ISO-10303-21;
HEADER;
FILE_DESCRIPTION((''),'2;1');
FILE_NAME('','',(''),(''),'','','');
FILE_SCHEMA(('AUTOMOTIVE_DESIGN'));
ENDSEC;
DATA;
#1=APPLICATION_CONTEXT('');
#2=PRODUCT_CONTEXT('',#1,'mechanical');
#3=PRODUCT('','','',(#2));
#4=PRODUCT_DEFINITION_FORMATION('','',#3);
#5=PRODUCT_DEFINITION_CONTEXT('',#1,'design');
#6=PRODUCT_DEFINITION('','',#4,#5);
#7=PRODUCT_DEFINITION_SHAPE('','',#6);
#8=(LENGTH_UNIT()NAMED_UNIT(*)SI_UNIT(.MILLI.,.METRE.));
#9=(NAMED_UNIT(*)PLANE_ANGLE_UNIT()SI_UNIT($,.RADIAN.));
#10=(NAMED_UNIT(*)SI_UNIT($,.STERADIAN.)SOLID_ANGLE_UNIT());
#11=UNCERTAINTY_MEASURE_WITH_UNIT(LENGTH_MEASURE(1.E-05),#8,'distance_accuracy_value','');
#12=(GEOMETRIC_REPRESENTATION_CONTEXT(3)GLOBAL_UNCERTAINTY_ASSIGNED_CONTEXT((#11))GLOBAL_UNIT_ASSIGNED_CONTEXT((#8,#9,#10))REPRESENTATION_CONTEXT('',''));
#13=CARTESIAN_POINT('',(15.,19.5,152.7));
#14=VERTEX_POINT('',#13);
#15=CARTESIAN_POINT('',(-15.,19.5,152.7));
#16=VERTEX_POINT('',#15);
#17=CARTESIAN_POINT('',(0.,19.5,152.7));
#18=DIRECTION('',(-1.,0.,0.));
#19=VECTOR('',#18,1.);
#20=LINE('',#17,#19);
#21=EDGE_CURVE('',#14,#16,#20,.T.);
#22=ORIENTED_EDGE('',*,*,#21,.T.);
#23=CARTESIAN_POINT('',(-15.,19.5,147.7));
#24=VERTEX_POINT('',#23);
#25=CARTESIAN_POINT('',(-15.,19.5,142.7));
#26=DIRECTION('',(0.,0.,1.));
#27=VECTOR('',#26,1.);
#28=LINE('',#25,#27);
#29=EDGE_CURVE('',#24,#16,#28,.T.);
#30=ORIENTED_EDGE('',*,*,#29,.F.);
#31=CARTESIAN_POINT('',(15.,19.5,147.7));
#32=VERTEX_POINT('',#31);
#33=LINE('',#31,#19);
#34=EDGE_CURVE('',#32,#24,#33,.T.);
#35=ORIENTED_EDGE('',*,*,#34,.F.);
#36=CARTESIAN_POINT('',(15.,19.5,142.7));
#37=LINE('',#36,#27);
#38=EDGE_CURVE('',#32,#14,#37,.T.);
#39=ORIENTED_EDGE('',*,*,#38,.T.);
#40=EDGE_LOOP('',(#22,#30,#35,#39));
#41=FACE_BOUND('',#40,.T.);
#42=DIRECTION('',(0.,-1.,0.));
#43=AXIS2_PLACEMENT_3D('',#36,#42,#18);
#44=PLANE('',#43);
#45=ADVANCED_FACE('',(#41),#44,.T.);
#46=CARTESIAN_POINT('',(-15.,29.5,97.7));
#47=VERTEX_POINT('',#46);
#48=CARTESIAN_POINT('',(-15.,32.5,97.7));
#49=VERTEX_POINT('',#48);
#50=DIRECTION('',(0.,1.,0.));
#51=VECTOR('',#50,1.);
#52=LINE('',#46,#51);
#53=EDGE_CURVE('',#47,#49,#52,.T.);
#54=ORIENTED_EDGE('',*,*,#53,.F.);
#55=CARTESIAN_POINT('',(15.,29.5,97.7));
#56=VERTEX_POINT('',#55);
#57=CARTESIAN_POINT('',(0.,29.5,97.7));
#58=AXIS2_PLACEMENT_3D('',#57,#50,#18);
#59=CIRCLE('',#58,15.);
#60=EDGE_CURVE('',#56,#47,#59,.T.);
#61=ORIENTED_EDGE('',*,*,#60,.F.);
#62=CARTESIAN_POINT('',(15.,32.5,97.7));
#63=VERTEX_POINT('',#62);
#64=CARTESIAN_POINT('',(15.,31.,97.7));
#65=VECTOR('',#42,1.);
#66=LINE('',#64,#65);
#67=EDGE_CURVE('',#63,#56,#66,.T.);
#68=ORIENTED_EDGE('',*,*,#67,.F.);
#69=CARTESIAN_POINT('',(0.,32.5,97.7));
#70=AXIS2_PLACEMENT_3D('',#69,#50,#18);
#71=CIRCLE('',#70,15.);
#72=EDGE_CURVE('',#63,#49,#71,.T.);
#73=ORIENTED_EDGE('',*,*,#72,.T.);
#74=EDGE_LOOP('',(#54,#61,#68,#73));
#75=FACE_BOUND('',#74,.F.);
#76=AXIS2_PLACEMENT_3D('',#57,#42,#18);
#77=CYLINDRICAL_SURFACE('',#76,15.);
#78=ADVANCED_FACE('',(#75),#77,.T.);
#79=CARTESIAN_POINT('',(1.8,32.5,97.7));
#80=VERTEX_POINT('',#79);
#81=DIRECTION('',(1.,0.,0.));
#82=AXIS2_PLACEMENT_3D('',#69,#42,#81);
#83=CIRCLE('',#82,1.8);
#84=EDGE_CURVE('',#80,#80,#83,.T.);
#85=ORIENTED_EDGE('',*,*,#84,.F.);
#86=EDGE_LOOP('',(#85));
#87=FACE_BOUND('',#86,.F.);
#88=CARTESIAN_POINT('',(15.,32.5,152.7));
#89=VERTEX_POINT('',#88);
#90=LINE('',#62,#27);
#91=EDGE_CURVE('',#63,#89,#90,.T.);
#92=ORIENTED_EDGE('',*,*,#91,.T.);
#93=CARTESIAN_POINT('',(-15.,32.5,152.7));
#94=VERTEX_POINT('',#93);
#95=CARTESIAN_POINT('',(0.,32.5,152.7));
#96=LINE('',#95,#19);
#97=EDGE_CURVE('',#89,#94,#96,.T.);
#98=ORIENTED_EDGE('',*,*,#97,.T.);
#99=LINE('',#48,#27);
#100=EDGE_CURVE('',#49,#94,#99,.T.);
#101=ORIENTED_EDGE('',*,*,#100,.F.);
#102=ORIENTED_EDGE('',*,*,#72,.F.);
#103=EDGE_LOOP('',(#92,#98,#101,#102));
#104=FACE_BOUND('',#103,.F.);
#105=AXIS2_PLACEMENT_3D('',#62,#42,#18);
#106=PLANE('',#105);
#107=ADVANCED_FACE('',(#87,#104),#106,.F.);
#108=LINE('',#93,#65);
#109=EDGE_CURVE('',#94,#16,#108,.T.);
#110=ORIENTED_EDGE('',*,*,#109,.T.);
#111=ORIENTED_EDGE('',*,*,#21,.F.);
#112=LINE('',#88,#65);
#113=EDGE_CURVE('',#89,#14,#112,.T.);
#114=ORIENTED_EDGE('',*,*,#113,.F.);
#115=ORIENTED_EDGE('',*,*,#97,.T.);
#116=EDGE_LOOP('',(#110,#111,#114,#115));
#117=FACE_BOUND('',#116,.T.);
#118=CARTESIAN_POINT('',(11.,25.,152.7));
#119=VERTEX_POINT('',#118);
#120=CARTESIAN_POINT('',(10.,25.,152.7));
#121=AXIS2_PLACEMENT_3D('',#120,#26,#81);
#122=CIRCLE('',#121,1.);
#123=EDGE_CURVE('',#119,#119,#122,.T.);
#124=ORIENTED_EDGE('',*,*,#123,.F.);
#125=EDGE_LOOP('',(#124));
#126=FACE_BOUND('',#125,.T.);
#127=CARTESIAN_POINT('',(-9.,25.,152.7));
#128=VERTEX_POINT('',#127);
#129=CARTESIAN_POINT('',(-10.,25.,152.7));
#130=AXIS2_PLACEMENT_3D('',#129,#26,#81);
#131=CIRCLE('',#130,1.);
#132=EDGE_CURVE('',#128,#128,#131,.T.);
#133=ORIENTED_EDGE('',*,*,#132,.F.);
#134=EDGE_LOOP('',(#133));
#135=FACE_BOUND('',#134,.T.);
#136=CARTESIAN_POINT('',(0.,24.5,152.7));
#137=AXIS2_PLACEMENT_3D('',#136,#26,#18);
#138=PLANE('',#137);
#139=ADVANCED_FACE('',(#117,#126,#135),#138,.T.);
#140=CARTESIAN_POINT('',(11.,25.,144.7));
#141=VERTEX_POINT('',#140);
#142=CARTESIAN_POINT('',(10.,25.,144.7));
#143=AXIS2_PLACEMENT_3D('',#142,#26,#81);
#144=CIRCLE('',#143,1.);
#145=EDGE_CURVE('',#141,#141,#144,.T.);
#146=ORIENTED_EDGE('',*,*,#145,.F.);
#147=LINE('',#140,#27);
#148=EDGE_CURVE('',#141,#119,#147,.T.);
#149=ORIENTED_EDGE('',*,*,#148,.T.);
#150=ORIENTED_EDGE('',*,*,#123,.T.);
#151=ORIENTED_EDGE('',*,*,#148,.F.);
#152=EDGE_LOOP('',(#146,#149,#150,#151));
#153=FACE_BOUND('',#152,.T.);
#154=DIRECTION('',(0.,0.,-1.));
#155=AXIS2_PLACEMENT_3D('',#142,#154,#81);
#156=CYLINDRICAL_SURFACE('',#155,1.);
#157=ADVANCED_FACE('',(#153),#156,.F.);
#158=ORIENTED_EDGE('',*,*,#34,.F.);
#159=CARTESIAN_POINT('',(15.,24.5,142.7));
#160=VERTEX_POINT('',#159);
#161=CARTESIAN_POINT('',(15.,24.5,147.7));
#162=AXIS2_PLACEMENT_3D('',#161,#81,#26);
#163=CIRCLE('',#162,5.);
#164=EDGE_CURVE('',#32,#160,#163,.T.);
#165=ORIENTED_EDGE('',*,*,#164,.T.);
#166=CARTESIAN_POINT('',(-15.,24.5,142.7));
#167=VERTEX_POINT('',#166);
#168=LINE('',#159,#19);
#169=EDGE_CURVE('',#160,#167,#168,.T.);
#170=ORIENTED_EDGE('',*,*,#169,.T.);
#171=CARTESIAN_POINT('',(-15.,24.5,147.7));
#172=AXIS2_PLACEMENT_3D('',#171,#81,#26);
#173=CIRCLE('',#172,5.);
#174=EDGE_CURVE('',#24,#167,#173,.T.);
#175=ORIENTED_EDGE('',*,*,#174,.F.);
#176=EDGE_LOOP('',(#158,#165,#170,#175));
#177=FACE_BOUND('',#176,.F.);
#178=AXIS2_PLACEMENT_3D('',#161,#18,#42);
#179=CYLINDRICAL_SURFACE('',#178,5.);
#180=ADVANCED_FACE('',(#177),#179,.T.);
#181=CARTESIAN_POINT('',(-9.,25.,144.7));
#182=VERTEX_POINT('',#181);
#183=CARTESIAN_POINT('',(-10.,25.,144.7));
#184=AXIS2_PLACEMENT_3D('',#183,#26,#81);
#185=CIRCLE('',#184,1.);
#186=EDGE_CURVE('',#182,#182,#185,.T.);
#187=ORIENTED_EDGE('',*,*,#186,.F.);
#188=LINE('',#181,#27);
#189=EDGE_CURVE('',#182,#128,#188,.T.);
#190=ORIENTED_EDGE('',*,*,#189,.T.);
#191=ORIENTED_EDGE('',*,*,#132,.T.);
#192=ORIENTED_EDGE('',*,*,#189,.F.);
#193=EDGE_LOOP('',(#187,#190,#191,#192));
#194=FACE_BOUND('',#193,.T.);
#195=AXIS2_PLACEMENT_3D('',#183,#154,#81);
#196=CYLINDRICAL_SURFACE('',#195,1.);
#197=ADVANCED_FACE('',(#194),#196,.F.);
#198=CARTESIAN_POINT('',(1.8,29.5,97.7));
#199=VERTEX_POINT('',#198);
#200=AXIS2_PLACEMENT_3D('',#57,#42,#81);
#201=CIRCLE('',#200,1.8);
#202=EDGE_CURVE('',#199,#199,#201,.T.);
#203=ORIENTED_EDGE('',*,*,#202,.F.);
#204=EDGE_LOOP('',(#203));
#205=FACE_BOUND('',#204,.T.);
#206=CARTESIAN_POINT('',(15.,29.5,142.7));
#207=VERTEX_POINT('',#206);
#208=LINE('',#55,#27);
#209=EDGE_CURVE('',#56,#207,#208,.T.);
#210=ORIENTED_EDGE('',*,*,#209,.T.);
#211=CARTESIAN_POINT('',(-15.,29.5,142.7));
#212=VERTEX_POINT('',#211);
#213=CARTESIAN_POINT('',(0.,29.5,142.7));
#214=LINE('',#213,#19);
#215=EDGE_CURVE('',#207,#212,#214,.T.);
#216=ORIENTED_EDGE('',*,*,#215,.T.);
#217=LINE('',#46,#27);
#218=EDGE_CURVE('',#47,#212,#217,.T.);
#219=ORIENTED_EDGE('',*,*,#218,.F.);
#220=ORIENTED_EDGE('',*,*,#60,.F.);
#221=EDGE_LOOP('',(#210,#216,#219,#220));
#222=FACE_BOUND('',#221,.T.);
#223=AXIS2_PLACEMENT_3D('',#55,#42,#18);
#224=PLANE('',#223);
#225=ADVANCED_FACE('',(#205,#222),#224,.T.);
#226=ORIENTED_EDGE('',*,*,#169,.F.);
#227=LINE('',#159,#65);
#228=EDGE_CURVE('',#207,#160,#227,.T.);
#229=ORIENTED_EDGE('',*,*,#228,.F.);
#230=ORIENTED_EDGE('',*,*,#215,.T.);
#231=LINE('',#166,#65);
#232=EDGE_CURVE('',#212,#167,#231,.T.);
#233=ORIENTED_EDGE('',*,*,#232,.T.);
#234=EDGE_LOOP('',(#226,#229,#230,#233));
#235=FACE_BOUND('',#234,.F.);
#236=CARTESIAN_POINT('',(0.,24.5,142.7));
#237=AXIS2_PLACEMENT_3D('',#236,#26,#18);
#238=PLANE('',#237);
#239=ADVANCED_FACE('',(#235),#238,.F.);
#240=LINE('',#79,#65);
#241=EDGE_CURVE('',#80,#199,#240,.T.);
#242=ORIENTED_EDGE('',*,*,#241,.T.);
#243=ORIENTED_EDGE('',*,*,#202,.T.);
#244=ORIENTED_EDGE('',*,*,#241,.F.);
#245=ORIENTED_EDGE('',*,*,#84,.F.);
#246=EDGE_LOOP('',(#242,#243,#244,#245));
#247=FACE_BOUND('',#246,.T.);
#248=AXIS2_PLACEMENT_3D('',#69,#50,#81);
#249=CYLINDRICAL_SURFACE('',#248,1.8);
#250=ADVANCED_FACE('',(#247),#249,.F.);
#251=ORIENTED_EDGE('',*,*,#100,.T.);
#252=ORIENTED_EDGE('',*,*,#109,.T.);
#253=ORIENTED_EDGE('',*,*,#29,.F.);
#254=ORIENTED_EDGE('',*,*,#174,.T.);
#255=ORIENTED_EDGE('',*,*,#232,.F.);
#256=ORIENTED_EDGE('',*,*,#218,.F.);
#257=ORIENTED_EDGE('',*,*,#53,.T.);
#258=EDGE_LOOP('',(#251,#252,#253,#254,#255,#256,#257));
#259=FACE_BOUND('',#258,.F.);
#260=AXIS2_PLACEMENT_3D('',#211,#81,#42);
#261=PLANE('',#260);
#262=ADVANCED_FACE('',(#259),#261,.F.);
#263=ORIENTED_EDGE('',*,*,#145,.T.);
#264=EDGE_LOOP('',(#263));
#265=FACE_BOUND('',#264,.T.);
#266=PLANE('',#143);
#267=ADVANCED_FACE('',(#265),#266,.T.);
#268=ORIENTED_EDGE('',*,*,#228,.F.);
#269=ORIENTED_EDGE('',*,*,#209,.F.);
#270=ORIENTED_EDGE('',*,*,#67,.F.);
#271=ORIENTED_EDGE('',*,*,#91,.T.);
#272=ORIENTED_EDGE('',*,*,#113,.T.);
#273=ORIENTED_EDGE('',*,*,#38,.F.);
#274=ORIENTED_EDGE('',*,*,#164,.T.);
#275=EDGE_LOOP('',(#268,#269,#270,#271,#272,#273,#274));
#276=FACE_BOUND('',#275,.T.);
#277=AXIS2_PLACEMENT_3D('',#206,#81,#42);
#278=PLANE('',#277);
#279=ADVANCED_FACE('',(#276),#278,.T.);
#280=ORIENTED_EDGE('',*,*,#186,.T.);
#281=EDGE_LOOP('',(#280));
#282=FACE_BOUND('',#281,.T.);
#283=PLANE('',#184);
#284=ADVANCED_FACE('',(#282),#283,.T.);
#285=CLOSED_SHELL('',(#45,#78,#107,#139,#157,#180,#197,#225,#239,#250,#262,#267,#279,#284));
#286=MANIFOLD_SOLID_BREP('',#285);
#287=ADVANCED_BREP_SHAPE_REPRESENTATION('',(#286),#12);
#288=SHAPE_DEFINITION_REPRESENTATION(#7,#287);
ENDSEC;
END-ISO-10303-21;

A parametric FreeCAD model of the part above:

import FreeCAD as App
import Part
import Sketcher

V = App.Vector


def edges_at(feature, points):
    """Names of the edges that pass closest to the given points."""
    edges = feature.Shape.Edges
    near = lambda p: min(range(len(edges)), key=lambda i: edges[i].distToShape(Part.Vertex(*p))[0])
    return sorted({f"Edge{near(p) + 1}" for p in points})


def add_polygon(sketch, points):
    """Adds a closed chain of lines whose ends are joined by coincident constraints."""
    first, n = sketch.GeometryCount, len(points)
    for a, b in zip(points, points[1:] + points[:1]):
        sketch.addGeometry(Part.LineSegment(App.Vector(*a, 0), App.Vector(*b, 0)), False)
    for i in range(n):
        sketch.addConstraint(Sketcher.Constraint("Coincident", first + i, 2, first + (i + 1) % n, 1))

doc = App.newDocument("Part")
params = doc.addObject("Spreadsheet::Sheet", "Params")
for row, (alias, value) in enumerate([
    ("sketch1_diameter", "2 mm"),
    ("pad1_length", "8 mm"),
    ("sketch2_diameter", "2 mm"),
    ("pad2_length", "8 mm"),
    ("sketch3_diameter", "3.6 mm"),
    ("pad3_length", "3 mm"),
    ("sketch4_width", "30 mm"),
    ("sketch4_height", "3 mm"),
    ("pad4_length", "55 mm"),
    ("sketch5_width", "30 mm"),
    ("sketch5_height", "10 mm"),
    ("pad5_length", "10 mm"),
    ("fillet_radius", "5 mm"),
    ("sketch6_diameter", "30 mm"),
    ("pad6_length", "3 mm"),
], start=1):
    params.set(f"A{row}", alias)
    params.set(f"B{row}", "=" + value)
    params.setAlias(f"B{row}", alias)

body = doc.addObject("PartDesign::Body", "Body")

sketch1 = body.newObject("Sketcher::SketchObject", "Sketch")
sketch1.AttachmentSupport = (doc.getObject("XY_Plane"), [""])
sketch1.MapMode = "FlatFace"
sketch1.AttachmentOffset = App.Placement(V(0, 0, 144.7), App.Rotation())
sketch1.addGeometry(Part.Circle(V(-10, 25, 0), V(0, 0, 1), 1), False)
sketch1.addConstraint([
    Sketcher.Constraint("Diameter", 0, 2.0),
    Sketcher.Constraint("DistanceX", 0, 3, -1, 1, 10.0),
    Sketcher.Constraint("DistanceY", -1, 1, 0, 3, 25.0),
])
sketch1.setExpression("Constraints[0]", "Params.sketch1_diameter")
pad1 = body.newObject("PartDesign::Pad", "Pad")
pad1.Profile = sketch1
pad1.setExpression("Length", "Params.pad1_length")
body2 = doc.addObject("PartDesign::Body", "Body001")

sketch2 = body2.newObject("Sketcher::SketchObject", "Sketch001")
sketch2.AttachmentSupport = (doc.getObject("XY_Plane001"), [""])
sketch2.MapMode = "FlatFace"
sketch2.AttachmentOffset = App.Placement(V(0, 0, 144.7), App.Rotation())
sketch2.addGeometry(Part.Circle(V(10, 25, 0), V(0, 0, 1), 1), False)
sketch2.addConstraint([
    Sketcher.Constraint("Diameter", 0, 2.0),
    Sketcher.Constraint("DistanceX", -1, 1, 0, 3, 10.0),
    Sketcher.Constraint("DistanceY", -1, 1, 0, 3, 25.0),
])
sketch2.setExpression("Constraints[0]", "Params.sketch2_diameter")
pad2 = body2.newObject("PartDesign::Pad", "Pad001")
pad2.Profile = sketch2
pad2.setExpression("Length", "Params.pad2_length")
body3 = doc.addObject("PartDesign::Body", "Body002")
body3.AllowCompound = True

sketch3 = body3.newObject("Sketcher::SketchObject", "Sketch002")
sketch3.AttachmentSupport = (doc.getObject("XZ_Plane002"), [""])
sketch3.MapMode = "FlatFace"
sketch3.AttachmentOffset = App.Placement(V(0, 0, -32.5), App.Rotation())
sketch3.addGeometry(Part.Circle(V(0, 97.7, 0), V(0, 0, 1), 1.8), False)
sketch3.addConstraint([
    Sketcher.Constraint("PointOnObject", 0, 3, -2),
    Sketcher.Constraint("Diameter", 0, 3.6),
    Sketcher.Constraint("DistanceY", -1, 1, 0, 3, 97.7),
])
sketch3.setExpression("Constraints[1]", "Params.sketch3_diameter")
pad3 = body3.newObject("PartDesign::Pad", "Pad002")
pad3.Profile = sketch3
pad3.setExpression("Length", "Params.pad3_length")
doc.recompute()

boolean = body3.newObject("PartDesign::Boolean", "Boolean")
boolean.Type = "Fuse"
boolean.addObjects([body])
doc.recompute()

boolean2 = body3.newObject("PartDesign::Boolean", "Boolean001")
boolean2.Type = "Fuse"
boolean2.addObjects([body2])
body4 = doc.addObject("PartDesign::Body", "Body003")

sketch4 = body4.newObject("Sketcher::SketchObject", "Sketch003")
sketch4.AttachmentSupport = (doc.getObject("XY_Plane003"), [""])
sketch4.MapMode = "FlatFace"
sketch4.AttachmentOffset = App.Placement(V(0, 0, 97.7), App.Rotation())
add_polygon(sketch4, [(-15, -37.5), (-15, -40.5), (15, -40.5), (15, -37.5)])
sketch4.addConstraint([
    Sketcher.Constraint("Vertical", 0),
    Sketcher.Constraint("Horizontal", 1),
    Sketcher.Constraint("Vertical", 2),
    Sketcher.Constraint("Horizontal", 3),
    Sketcher.Constraint("DistanceX", 1, 1, 1, 2, 30.0),
    Sketcher.Constraint("DistanceY", 0, 2, 0, 1, 3.0),
    Sketcher.Constraint("DistanceX", 0, 2, -1, 1, 15.0),
    Sketcher.Constraint("DistanceY", 0, 2, -1, 1, 40.5),
])
sketch4.setExpression("Constraints[8]", "Params.sketch4_width")
sketch4.setExpression("Constraints[9]", "Params.sketch4_height")
pad4 = body4.newObject("PartDesign::Pad", "Pad003")
pad4.Profile = sketch4
pad4.setExpression("Length", "Params.pad4_length")
body5 = doc.addObject("PartDesign::Body", "Body004")

sketch5 = body5.newObject("Sketcher::SketchObject", "Sketch004")
sketch5.AttachmentSupport = (doc.getObject("XY_Plane004"), [""])
sketch5.MapMode = "FlatFace"
sketch5.AttachmentOffset = App.Placement(V(0, 0, 142.7), App.Rotation())
add_polygon(sketch5, [(-15, -28), (-15, -38), (15, -38), (15, -28)])
sketch5.addConstraint([
    Sketcher.Constraint("Vertical", 0),
    Sketcher.Constraint("Horizontal", 1),
    Sketcher.Constraint("Vertical", 2),
    Sketcher.Constraint("Horizontal", 3),
    Sketcher.Constraint("DistanceX", 1, 1, 1, 2, 30.0),
    Sketcher.Constraint("DistanceY", 0, 2, 0, 1, 10.0),
    Sketcher.Constraint("DistanceX", 0, 2, -1, 1, 15.0),
    Sketcher.Constraint("DistanceY", 0, 2, -1, 1, 37.5),
])
sketch5.setExpression("Constraints[8]", "Params.sketch5_width")
sketch5.setExpression("Constraints[9]", "Params.sketch5_height")
pad5 = body5.newObject("PartDesign::Pad", "Pad004")
pad5.Profile = sketch5
pad5.setExpression("Length", "Params.pad5_length")
doc.recompute()

fillet = body5.newObject("PartDesign::Fillet", "Fillet")
fillet.Base = (pad5, edges_at(pad5, [(0, -27.5, 142.7)]))
fillet.setExpression("Radius", "Params.fillet_radius")
body6 = doc.addObject("PartDesign::Body", "Body005")

sketch6 = body6.newObject("Sketcher::SketchObject", "Sketch005")
sketch6.AttachmentSupport = (doc.getObject("XZ_Plane005"), [""])
sketch6.MapMode = "FlatFace"
sketch6.AttachmentOffset = App.Placement(V(0, 0, 37.5), App.Rotation())
sketch6.addGeometry(Part.Circle(V(0, 98, 0), V(0, 0, 1), 15), False)
sketch6.addConstraint([
    Sketcher.Constraint("PointOnObject", 0, 3, -2),
    Sketcher.Constraint("Diameter", 0, 30.0),
    Sketcher.Constraint("DistanceY", -1, 1, 0, 3, 97.7),
])
sketch6.setExpression("Constraints[1]", "Params.sketch6_diameter")
pad6 = body6.newObject("PartDesign::Pad", "Pad005")
pad6.Profile = sketch6
pad6.setExpression("Length", "Params.pad6_length")
doc.recompute()

boolean3 = body6.newObject("PartDesign::Boolean", "Boolean002")
boolean3.Type = "Fuse"
boolean3.addObjects([body4])
doc.recompute()

boolean4 = body6.newObject("PartDesign::Boolean", "Boolean003")
boolean4.Type = "Fuse"
boolean4.addObjects([body5])
body7 = doc.addObject("PartDesign::Body", "Body006")
doc.recompute()

body6.Placement = App.Placement(V(0, -8, 0), App.Rotation(V(0, 0, 1), 180))
boolean5 = body7.newObject("PartDesign::Boolean", "Boolean004")
boolean5.Type = "Fuse"
boolean5.addObjects([body6])
doc.recompute()

boolean6 = body7.newObject("PartDesign::Boolean", "Boolean005")
boolean6.Type = "Cut"
boolean6.addObjects([body3])

doc.recompute()
